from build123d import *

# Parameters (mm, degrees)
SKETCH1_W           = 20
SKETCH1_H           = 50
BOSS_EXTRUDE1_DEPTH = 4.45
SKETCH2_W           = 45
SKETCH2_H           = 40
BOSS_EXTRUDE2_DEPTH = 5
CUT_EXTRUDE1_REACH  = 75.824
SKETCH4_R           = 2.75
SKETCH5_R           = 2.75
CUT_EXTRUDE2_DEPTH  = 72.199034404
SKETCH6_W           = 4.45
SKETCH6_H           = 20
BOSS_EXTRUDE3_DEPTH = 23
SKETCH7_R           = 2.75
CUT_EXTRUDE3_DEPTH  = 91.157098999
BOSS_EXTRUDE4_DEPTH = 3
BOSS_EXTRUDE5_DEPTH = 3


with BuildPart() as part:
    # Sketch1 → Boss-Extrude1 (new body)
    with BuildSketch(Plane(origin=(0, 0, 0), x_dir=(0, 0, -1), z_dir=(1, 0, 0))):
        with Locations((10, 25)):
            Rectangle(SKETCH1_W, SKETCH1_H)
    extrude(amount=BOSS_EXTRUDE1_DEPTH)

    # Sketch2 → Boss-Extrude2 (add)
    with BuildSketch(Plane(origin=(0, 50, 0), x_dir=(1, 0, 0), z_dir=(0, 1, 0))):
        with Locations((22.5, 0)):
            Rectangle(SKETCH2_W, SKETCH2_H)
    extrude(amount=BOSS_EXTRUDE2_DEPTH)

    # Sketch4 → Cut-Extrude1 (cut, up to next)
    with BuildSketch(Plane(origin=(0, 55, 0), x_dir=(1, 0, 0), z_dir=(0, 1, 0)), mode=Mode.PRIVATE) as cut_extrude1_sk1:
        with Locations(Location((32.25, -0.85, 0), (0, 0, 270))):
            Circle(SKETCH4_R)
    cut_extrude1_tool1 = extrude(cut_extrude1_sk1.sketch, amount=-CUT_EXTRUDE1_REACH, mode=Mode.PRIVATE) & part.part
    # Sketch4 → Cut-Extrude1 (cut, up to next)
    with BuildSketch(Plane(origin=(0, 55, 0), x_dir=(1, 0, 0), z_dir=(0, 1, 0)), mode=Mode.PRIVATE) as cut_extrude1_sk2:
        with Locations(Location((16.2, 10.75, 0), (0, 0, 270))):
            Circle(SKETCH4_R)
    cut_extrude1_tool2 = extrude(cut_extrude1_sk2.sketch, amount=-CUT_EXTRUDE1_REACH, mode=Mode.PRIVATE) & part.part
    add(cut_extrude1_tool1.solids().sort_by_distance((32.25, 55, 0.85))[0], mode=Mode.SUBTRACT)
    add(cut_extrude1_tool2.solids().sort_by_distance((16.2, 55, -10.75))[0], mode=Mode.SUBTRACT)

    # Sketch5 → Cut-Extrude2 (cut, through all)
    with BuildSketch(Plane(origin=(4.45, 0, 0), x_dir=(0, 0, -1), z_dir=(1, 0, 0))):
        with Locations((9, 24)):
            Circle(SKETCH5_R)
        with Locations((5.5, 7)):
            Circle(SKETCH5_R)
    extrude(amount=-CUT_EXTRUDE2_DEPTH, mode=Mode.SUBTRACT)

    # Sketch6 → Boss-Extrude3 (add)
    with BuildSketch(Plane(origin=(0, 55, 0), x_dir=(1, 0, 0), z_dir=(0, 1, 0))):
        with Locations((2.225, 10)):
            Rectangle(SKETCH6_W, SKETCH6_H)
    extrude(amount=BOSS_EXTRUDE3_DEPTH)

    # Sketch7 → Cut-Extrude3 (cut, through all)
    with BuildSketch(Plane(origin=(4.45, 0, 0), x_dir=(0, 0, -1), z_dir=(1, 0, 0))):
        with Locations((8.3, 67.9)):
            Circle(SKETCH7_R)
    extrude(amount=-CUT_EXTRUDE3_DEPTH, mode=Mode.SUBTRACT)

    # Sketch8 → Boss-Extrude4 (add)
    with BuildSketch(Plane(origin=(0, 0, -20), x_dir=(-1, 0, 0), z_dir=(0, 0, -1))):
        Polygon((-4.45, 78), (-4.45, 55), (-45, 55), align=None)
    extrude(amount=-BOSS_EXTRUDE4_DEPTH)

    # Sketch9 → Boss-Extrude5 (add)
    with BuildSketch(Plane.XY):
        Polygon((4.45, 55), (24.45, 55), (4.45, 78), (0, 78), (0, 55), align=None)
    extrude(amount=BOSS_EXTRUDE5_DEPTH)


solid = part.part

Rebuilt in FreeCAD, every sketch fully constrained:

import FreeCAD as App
import Part
import Sketcher
Q = App.Units.Quantity


def add_polygon(sketch, points):
    """Adds a closed chain of lines whose ends are joined by coincident constraints."""
    first, n = sketch.GeometryCount, len(points)
    for a, b in zip(points, points[1:] + points[:1]):
        sketch.addGeometry(Part.LineSegment(App.Vector(*a, 0), App.Vector(*b, 0)), False)
    for i in range(n):
        sketch.addConstraint(Sketcher.Constraint("Coincident", first + i, 2, first + (i + 1) % n, 1))

doc = App.newDocument("Part")
body = doc.addObject("PartDesign::Body", "Body")

# Sketch on YZ plane
sketch1 = body.newObject("Sketcher::SketchObject", "Sketch")
sketch1.AttachmentSupport = (doc.getObject("YZ_Plane"), [""])
sketch1.MapMode = "FlatFace"
add_polygon(sketch1, [(50, 0), (0, 0), (0, -20), (50, -20)])  # lines 0-3
sketch1.addConstraint([
    Sketcher.Constraint("Horizontal", 0),
    Sketcher.Constraint("Vertical", 1),
    Sketcher.Constraint("Horizontal", 2),
    Sketcher.Constraint("Vertical", 3),
    Sketcher.Constraint("Coincident", 0, 2, -1, 1),
    Sketcher.Constraint("DistanceX", 0, 2, 0, 1, Q("50 mm")),
    Sketcher.Constraint("DistanceY", 1, 2, 1, 1, Q("20 mm")),
])
pad1 = body.newObject("PartDesign::Pad", "Pad")
pad1.Profile = sketch1
pad1.Length = 4.45

# Sketch on XZ plane
sketch2 = body.newObject("Sketcher::SketchObject", "Sketch001")
sketch2.AttachmentSupport = (doc.getObject("XZ_Plane"), [""])
sketch2.MapMode = "FlatFace"
sketch2.AttachmentOffset = App.Placement(App.Vector(0, 0, -50), App.Rotation())
add_polygon(sketch2, [(0, -20), (0, 20), (45, 20), (45, -20)])  # lines 0-3
sketch2.addConstraint([
    Sketcher.Constraint("Vertical", 0),
    Sketcher.Constraint("Horizontal", 1),
    Sketcher.Constraint("Vertical", 2),
    Sketcher.Constraint("Horizontal", 3),
    Sketcher.Constraint("Symmetric", 0, 2, 3, 2, -1, 1),
    Sketcher.Constraint("DistanceX", 1, 1, 1, 2, Q("45 mm")),
    Sketcher.Constraint("DistanceY", 0, 1, 0, 2, Q("40 mm")),
])
pad2 = body.newObject("PartDesign::Pad", "Pad001")
pad2.Profile = sketch2
pad2.Length = 5
pad2.Reversed = True

# Sketch on XZ plane
sketch3 = body.newObject("Sketcher::SketchObject", "Sketch002")
sketch3.AttachmentSupport = (doc.getObject("XZ_Plane"), [""])
sketch3.MapMode = "FlatFace"
sketch3.AttachmentOffset = App.Placement(App.Vector(0, 0, -55), App.Rotation())
sketch3.addGeometry(Part.Circle(App.Vector(32.2, 0.8, 0), App.Vector(0, 0, 1), 2.8), False)
sketch3.addConstraint([
    Sketcher.Constraint("Diameter", 0, Q("5.5 mm")),
    Sketcher.Constraint("DistanceX", -1, 1, 0, 3, Q("32.25 mm")),
    Sketcher.Constraint("DistanceY", -1, 1, 0, 3, Q("0.85 mm")),
])
pocket1 = body.newObject("PartDesign::Pocket", "Pocket")
pocket1.Profile = sketch3
pocket1.Type = "UpToFirst"
pocket1.Reversed = True

# Sketch on XZ plane
sketch4 = body.newObject("Sketcher::SketchObject", "Sketch003")
sketch4.AttachmentSupport = (doc.getObject("XZ_Plane"), [""])
sketch4.MapMode = "FlatFace"
sketch4.AttachmentOffset = App.Placement(App.Vector(0, 0, -55), App.Rotation())
sketch4.addGeometry(Part.Circle(App.Vector(16.2, -10.8, 0), App.Vector(0, 0, 1), 2.8), False)
sketch4.addConstraint([
    Sketcher.Constraint("Diameter", 0, Q("5.5 mm")),
    Sketcher.Constraint("DistanceX", -1, 1, 0, 3, Q("16.2 mm")),
    Sketcher.Constraint("DistanceY", 0, 3, -1, 1, Q("10.75 mm")),
])
pocket2 = body.newObject("PartDesign::Pocket", "Pocket001")
pocket2.Profile = sketch4
pocket2.Type = "UpToFirst"
pocket2.Reversed = True

# Sketch on YZ plane
sketch5 = body.newObject("Sketcher::SketchObject", "Sketch004")
sketch5.AttachmentSupport = (doc.getObject("YZ_Plane"), [""])
sketch5.MapMode = "FlatFace"
sketch5.AttachmentOffset = App.Placement(App.Vector(0, 0, 4.45), App.Rotation())
sketch5.addGeometry([
    Part.Circle(App.Vector(24, -9, 0), App.Vector(0, 0, 1), 2.8),
    Part.Circle(App.Vector(7, -5.5, 0), App.Vector(0, 0, 1), 2.8),
], False)
sketch5.addConstraint([
    Sketcher.Constraint("Equal", 0, 1),
    Sketcher.Constraint("Diameter", 0, Q("5.5 mm")),
    Sketcher.Constraint("DistanceX", -1, 1, 0, 3, Q("24 mm")),
    Sketcher.Constraint("DistanceY", 0, 3, -1, 1, Q("9 mm")),
    Sketcher.Constraint("DistanceX", -1, 1, 1, 3, Q("7 mm")),
    Sketcher.Constraint("DistanceY", 1, 3, -1, 1, Q("5.5 mm")),
])
pocket3 = body.newObject("PartDesign::Pocket", "Pocket002")
pocket3.Profile = sketch5
pocket3.Type = "ThroughAll"

# Sketch on XZ plane
sketch6 = body.newObject("Sketcher::SketchObject", "Sketch005")
sketch6.AttachmentSupport = (doc.getObject("XZ_Plane"), [""])
sketch6.MapMode = "FlatFace"
sketch6.AttachmentOffset = App.Placement(App.Vector(0, 0, -55), App.Rotation())
add_polygon(sketch6, [(0, -20), (0, 0), (4.5, 0), (4.5, -20)])  # lines 0-3
sketch6.addConstraint([
    Sketcher.Constraint("Vertical", 0),
    Sketcher.Constraint("Horizontal", 1),
    Sketcher.Constraint("Vertical", 2),
    Sketcher.Constraint("Horizontal", 3),
    Sketcher.Constraint("Coincident", 0, 2, -1, 1),
    Sketcher.Constraint("DistanceY", 0, 1, 0, 2, Q("20 mm")),
    Sketcher.Constraint("DistanceX", 1, 1, 1, 2, Q("4.45 mm")),
])
pad3 = body.newObject("PartDesign::Pad", "Pad002")
pad3.Profile = sketch6
pad3.Length = 23
pad3.Reversed = True

# Sketch on YZ plane
sketch7 = body.newObject("Sketcher::SketchObject", "Sketch006")
sketch7.AttachmentSupport = (doc.getObject("YZ_Plane"), [""])
sketch7.MapMode = "FlatFace"
sketch7.AttachmentOffset = App.Placement(App.Vector(0, 0, 4.45), App.Rotation())
sketch7.addGeometry(Part.Circle(App.Vector(67.9, -8.3, 0), App.Vector(0, 0, 1), 2.8), False)
sketch7.addConstraint([
    Sketcher.Constraint("Diameter", 0, Q("5.5 mm")),
    Sketcher.Constraint("DistanceX", -1, 1, 0, 3, Q("67.9 mm")),
    Sketcher.Constraint("DistanceY", 0, 3, -1, 1, Q("8.3 mm")),
])
pocket4 = body.newObject("PartDesign::Pocket", "Pocket003")
pocket4.Profile = sketch7
pocket4.Type = "ThroughAll"

# Sketch on XY plane
sketch8 = body.newObject("Sketcher::SketchObject", "Sketch007")
sketch8.AttachmentSupport = (doc.getObject("XY_Plane"), [""])
sketch8.MapMode = "FlatFace"
sketch8.AttachmentOffset = App.Placement(App.Vector(0, 0, -20), App.Rotation())
add_polygon(sketch8, [(4, 55), (4, 78), (45, 55)])  # lines 0-2
sketch8.addConstraint([
    Sketcher.Constraint("Vertical", 0),
    Sketcher.Constraint("Horizontal", 2),
    Sketcher.Constraint("DistanceY", 0, 1, 0, 2, Q("23 mm")),
    Sketcher.Constraint("DistanceY", -1, 1, 0, 2, Q("78 mm")),
    Sketcher.Constraint("DistanceX", -1, 1, 1, 2, Q("45 mm")),
    Sketcher.Constraint("DistanceX", 2, 2, 2, 1, Q("40.55 mm")),
])
pad4 = body.newObject("PartDesign::Pad", "Pad003")
pad4.Profile = sketch8
pad4.Length = 3

# Sketch on XY plane
sketch9 = body.newObject("Sketcher::SketchObject", "Sketch008")
sketch9.AttachmentSupport = (doc.getObject("XY_Plane"), [""])
sketch9.MapMode = "FlatFace"
add_polygon(sketch9, [(24.4, 55), (4.5, 78), (0, 78), (0, 55)])  # lines 0-3
sketch9.addConstraint([
    Sketcher.Constraint("Horizontal", 1),
    Sketcher.Constraint("Vertical", 2),
    Sketcher.Constraint("Horizontal", 3),
    Sketcher.Constraint("PointOnObject", 1, 2, -2),
    Sketcher.Constraint("DistanceY", 2, 2, 2, 1, Q("23 mm")),
    Sketcher.Constraint("DistanceY", -1, 1, 0, 2, Q("78 mm")),
    Sketcher.Constraint("DistanceX", 0, 2, 3, 2, Q("20 mm")),
    Sketcher.Constraint("DistanceX", 1, 2, 1, 1, Q("4.45 mm")),
])
pad5 = body.newObject("PartDesign::Pad", "Pad004")
pad5.Profile = sketch9
pad5.Length = 3

doc.recompute()
